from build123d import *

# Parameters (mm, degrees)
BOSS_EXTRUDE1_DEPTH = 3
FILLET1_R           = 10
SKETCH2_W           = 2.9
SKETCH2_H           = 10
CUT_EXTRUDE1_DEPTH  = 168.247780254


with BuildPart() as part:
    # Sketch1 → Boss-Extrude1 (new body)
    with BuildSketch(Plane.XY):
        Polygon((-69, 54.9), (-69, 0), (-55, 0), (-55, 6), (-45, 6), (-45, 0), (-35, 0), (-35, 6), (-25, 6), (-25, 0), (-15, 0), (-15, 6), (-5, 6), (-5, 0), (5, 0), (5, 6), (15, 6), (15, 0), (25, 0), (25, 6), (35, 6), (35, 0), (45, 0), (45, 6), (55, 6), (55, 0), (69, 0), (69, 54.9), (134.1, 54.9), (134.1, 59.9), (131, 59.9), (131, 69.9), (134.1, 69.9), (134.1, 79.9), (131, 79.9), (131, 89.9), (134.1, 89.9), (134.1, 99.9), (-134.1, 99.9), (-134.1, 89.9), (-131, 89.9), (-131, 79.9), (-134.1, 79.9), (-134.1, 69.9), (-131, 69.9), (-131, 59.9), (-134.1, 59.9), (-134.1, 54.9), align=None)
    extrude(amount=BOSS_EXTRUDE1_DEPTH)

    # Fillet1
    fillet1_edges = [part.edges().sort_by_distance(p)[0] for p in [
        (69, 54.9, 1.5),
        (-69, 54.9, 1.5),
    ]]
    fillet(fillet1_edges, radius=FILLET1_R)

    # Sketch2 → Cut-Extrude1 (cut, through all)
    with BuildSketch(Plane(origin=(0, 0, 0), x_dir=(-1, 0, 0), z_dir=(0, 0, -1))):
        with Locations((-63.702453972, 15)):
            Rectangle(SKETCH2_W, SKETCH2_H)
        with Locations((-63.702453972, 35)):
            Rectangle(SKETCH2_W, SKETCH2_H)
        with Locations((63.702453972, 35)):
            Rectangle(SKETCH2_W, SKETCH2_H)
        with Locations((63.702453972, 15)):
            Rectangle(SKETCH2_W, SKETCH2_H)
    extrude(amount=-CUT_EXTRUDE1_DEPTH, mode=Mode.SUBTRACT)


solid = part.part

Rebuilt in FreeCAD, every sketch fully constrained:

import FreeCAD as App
import Part
import Sketcher
Q = App.Units.Quantity


def edges_at(feature, points):
    """Names of the edges that pass closest to the given points."""
    edges = feature.Shape.Edges
    near = lambda p: min(range(len(edges)), key=lambda i: edges[i].distToShape(Part.Vertex(*p))[0])
    return sorted({f"Edge{near(p) + 1}" for p in points})

doc = App.newDocument("Part")
params = doc.addObject("Spreadsheet::Sheet", "Params")
for row, (alias, value) in enumerate([
    ("sketch1_width", "14 mm"),
    ("sketch1_width2", "10 mm"),
    ("sketch1_height", "6 mm"),
    ("sketch1_height2", "5 mm"),
    ("sketch1_width3", "65.1 mm"),
    ("pad1_length", "3 mm"),
    ("fillet_radius", "10 mm"),
    ("sketch2_height", "10 mm"),
    ("sketch2_width", "2.9 mm"),
], start=1):
    params.set(f"A{row}", alias)
    params.set(f"B{row}", "=" + value)
    params.setAlias(f"B{row}", alias)

body = doc.addObject("PartDesign::Body", "Body")

sketch1 = body.newObject("Sketcher::SketchObject", "Sketch")
sketch1.AttachmentSupport = (doc.getObject("XY_Plane"), [""])
sketch1.MapMode = "FlatFace"
sketch1.addGeometry([
    Part.LineSegment(App.Vector(-69, 54.9, 0), App.Vector(-69, 0, 0)),
    Part.LineSegment(App.Vector(-69, 0, 0), App.Vector(-55, 0, 0)),
    Part.LineSegment(App.Vector(-55, 0, 0), App.Vector(-55, 6, 0)),
    Part.LineSegment(App.Vector(-55, 6, 0), App.Vector(-45, 6, 0)),
    Part.LineSegment(App.Vector(-45, 6, 0), App.Vector(-45, 0, 0)),
    Part.LineSegment(App.Vector(-45, 0, 0), App.Vector(-35, 0, 0)),
    Part.LineSegment(App.Vector(-35, 0, 0), App.Vector(-35, 6, 0)),
    Part.LineSegment(App.Vector(-35, 6, 0), App.Vector(-25, 6, 0)),
    Part.LineSegment(App.Vector(-25, 6, 0), App.Vector(-25, 0, 0)),
    Part.LineSegment(App.Vector(-25, 0, 0), App.Vector(-15, 0, 0)),
    Part.LineSegment(App.Vector(-15, 0, 0), App.Vector(-15, 6, 0)),
    Part.LineSegment(App.Vector(-15, 6, 0), App.Vector(-5, 6, 0)),
    Part.LineSegment(App.Vector(-5, 6, 0), App.Vector(-5, 0, 0)),
    Part.LineSegment(App.Vector(-5, 0, 0), App.Vector(5, 0, 0)),
    Part.LineSegment(App.Vector(5, 0, 0), App.Vector(5, 6, 0)),
    Part.LineSegment(App.Vector(5, 6, 0), App.Vector(15, 6, 0)),
    Part.LineSegment(App.Vector(15, 6, 0), App.Vector(15, 0, 0)),
    Part.LineSegment(App.Vector(15, 0, 0), App.Vector(25, 0, 0)),
    Part.LineSegment(App.Vector(25, 0, 0), App.Vector(25, 6, 0)),
    Part.LineSegment(App.Vector(25, 6, 0), App.Vector(35, 6, 0)),
    Part.LineSegment(App.Vector(35, 6, 0), App.Vector(35, 0, 0)),
    Part.LineSegment(App.Vector(35, 0, 0), App.Vector(45, 0, 0)),
    Part.LineSegment(App.Vector(45, 0, 0), App.Vector(45, 6, 0)),
    Part.LineSegment(App.Vector(45, 6, 0), App.Vector(55, 6, 0)),
    Part.LineSegment(App.Vector(55, 6, 0), App.Vector(55, 0, 0)),
    Part.LineSegment(App.Vector(55, 0, 0), App.Vector(69, 0, 0)),
    Part.LineSegment(App.Vector(69, 0, 0), App.Vector(69, 54.9, 0)),
    Part.LineSegment(App.Vector(69, 54.9, 0), App.Vector(134.1, 54.9, 0)),
    Part.LineSegment(App.Vector(134.1, 54.9, 0), App.Vector(134.1, 59.9, 0)),
    Part.LineSegment(App.Vector(134.1, 59.9, 0), App.Vector(131, 59.9, 0)),
    Part.LineSegment(App.Vector(131, 59.9, 0), App.Vector(131, 69.9, 0)),
    Part.LineSegment(App.Vector(131, 69.9, 0), App.Vector(134.1, 69.9, 0)),
    Part.LineSegment(App.Vector(134.1, 69.9, 0), App.Vector(134.1, 79.9, 0)),
    Part.LineSegment(App.Vector(134.1, 79.9, 0), App.Vector(131, 79.9, 0)),
    Part.LineSegment(App.Vector(131, 79.9, 0), App.Vector(131, 89.9, 0)),
    Part.LineSegment(App.Vector(131, 89.9, 0), App.Vector(134.1, 89.9, 0)),
    Part.LineSegment(App.Vector(134.1, 89.9, 0), App.Vector(134.1, 99.9, 0)),
    Part.LineSegment(App.Vector(134.1, 99.9, 0), App.Vector(-134.1, 99.9, 0)),
    Part.LineSegment(App.Vector(-134.1, 99.9, 0), App.Vector(-134.1, 89.9, 0)),
    Part.LineSegment(App.Vector(-134.1, 89.9, 0), App.Vector(-131, 89.9, 0)),
    Part.LineSegment(App.Vector(-131, 89.9, 0), App.Vector(-131, 79.9, 0)),
    Part.LineSegment(App.Vector(-131, 79.9, 0), App.Vector(-134.1, 79.9, 0)),
    Part.LineSegment(App.Vector(-134.1, 79.9, 0), App.Vector(-134.1, 69.9, 0)),
    Part.LineSegment(App.Vector(-134.1, 69.9, 0), App.Vector(-131, 69.9, 0)),
    Part.LineSegment(App.Vector(-131, 69.9, 0), App.Vector(-131, 59.9, 0)),
    Part.LineSegment(App.Vector(-131, 59.9, 0), App.Vector(-134.1, 59.9, 0)),
    Part.LineSegment(App.Vector(-134.1, 59.9, 0), App.Vector(-134.1, 54.9, 0)),
    Part.LineSegment(App.Vector(-134.1, 54.9, 0), App.Vector(-69, 54.9, 0)),
], False)
sketch1.addConstraint([
    Sketcher.Constraint("Coincident", 0, 2, 1, 1),
    Sketcher.Constraint("Coincident", 1, 2, 2, 1),
    Sketcher.Constraint("Coincident", 2, 2, 3, 1),
    Sketcher.Constraint("Coincident", 3, 2, 4, 1),
    Sketcher.Constraint("Coincident", 4, 2, 5, 1),
    Sketcher.Constraint("Coincident", 5, 2, 6, 1),
    Sketcher.Constraint("Coincident", 6, 2, 7, 1),
    Sketcher.Constraint("Coincident", 7, 2, 8, 1),
    Sketcher.Constraint("Coincident", 8, 2, 9, 1),
    Sketcher.Constraint("Coincident", 9, 2, 10, 1),
    Sketcher.Constraint("Coincident", 10, 2, 11, 1),
    Sketcher.Constraint("Coincident", 11, 2, 12, 1),
    Sketcher.Constraint("Coincident", 12, 2, 13, 1),
    Sketcher.Constraint("Coincident", 13, 2, 14, 1),
    Sketcher.Constraint("Coincident", 14, 2, 15, 1),
    Sketcher.Constraint("Coincident", 15, 2, 16, 1),
    Sketcher.Constraint("Coincident", 16, 2, 17, 1),
    Sketcher.Constraint("Coincident", 17, 2, 18, 1),
    Sketcher.Constraint("Coincident", 18, 2, 19, 1),
    Sketcher.Constraint("Coincident", 19, 2, 20, 1),
    Sketcher.Constraint("Coincident", 20, 2, 21, 1),
    Sketcher.Constraint("Coincident", 21, 2, 22, 1),
    Sketcher.Constraint("Coincident", 22, 2, 23, 1),
    Sketcher.Constraint("Coincident", 23, 2, 24, 1),
    Sketcher.Constraint("Coincident", 24, 2, 25, 1),
    Sketcher.Constraint("Coincident", 25, 2, 26, 1),
    Sketcher.Constraint("Coincident", 26, 2, 27, 1),
    Sketcher.Constraint("Coincident", 27, 2, 28, 1),
    Sketcher.Constraint("Coincident", 28, 2, 29, 1),
    Sketcher.Constraint("Coincident", 29, 2, 30, 1),
    Sketcher.Constraint("Coincident", 30, 2, 31, 1),
    Sketcher.Constraint("Coincident", 31, 2, 32, 1),
    Sketcher.Constraint("Coincident", 32, 2, 33, 1),
    Sketcher.Constraint("Coincident", 33, 2, 34, 1),
    Sketcher.Constraint("Coincident", 34, 2, 35, 1),
    Sketcher.Constraint("Coincident", 35, 2, 36, 1),
    Sketcher.Constraint("Coincident", 36, 2, 37, 1),
    Sketcher.Constraint("Coincident", 37, 2, 38, 1),
    Sketcher.Constraint("Coincident", 38, 2, 39, 1),
    Sketcher.Constraint("Coincident", 39, 2, 40, 1),
    Sketcher.Constraint("Coincident", 40, 2, 41, 1),
    Sketcher.Constraint("Coincident", 41, 2, 42, 1),
    Sketcher.Constraint("Coincident", 42, 2, 43, 1),
    Sketcher.Constraint("Coincident", 43, 2, 44, 1),
    Sketcher.Constraint("Coincident", 44, 2, 45, 1),
    Sketcher.Constraint("Coincident", 45, 2, 46, 1),
    Sketcher.Constraint("Coincident", 46, 2, 47, 1),
    Sketcher.Constraint("Coincident", 47, 2, 0, 1),
    Sketcher.Constraint("Vertical", 0),
    Sketcher.Constraint("Horizontal", 1),
    Sketcher.Constraint("Vertical", 2),
    Sketcher.Constraint("Horizontal", 3),
    Sketcher.Constraint("Vertical", 4),
    Sketcher.Constraint("Horizontal", 5),
    Sketcher.Constraint("Vertical", 6),
    Sketcher.Constraint("Horizontal", 7),
    Sketcher.Constraint("Vertical", 8),
    Sketcher.Constraint("Horizontal", 9),
    Sketcher.Constraint("Vertical", 10),
    Sketcher.Constraint("Horizontal", 11),
    Sketcher.Constraint("Vertical", 12),
    Sketcher.Constraint("Horizontal", 13),
    Sketcher.Constraint("Vertical", 14),
    Sketcher.Constraint("Horizontal", 15),
    Sketcher.Constraint("Vertical", 16),
    Sketcher.Constraint("Horizontal", 17),
    Sketcher.Constraint("Vertical", 18),
    Sketcher.Constraint("Horizontal", 19),
    Sketcher.Constraint("Vertical", 20),
    Sketcher.Constraint("Horizontal", 21),
    Sketcher.Constraint("Vertical", 22),
    Sketcher.Constraint("Horizontal", 23),
    Sketcher.Constraint("Vertical", 24),
    Sketcher.Constraint("Horizontal", 25),
    Sketcher.Constraint("Vertical", 26),
    Sketcher.Constraint("Horizontal", 27),
    Sketcher.Constraint("Vertical", 28),
    Sketcher.Constraint("Horizontal", 29),
    Sketcher.Constraint("Vertical", 30),
    Sketcher.Constraint("Horizontal", 31),
    Sketcher.Constraint("Vertical", 32),
    Sketcher.Constraint("Horizontal", 33),
    Sketcher.Constraint("Vertical", 34),
    Sketcher.Constraint("Horizontal", 35),
    Sketcher.Constraint("Vertical", 36),
    Sketcher.Constraint("Horizontal", 37),
    Sketcher.Constraint("Vertical", 38),
    Sketcher.Constraint("Horizontal", 39),
    Sketcher.Constraint("Vertical", 40),
    Sketcher.Constraint("Horizontal", 41),
    Sketcher.Constraint("Vertical", 42),
    Sketcher.Constraint("Horizontal", 43),
    Sketcher.Constraint("Vertical", 44),
    Sketcher.Constraint("Horizontal", 45),
    Sketcher.Constraint("Vertical", 46),
    Sketcher.Constraint("Horizontal", 47),
    Sketcher.Constraint("Symmetric", 12, 2, 13, 2, -1, 1),
    Sketcher.Constraint("Symmetric", 9, 2, 16, 2, -1, 1),
    Sketcher.Constraint("Symmetric", 5, 2, 20, 2, -1, 1),
    Sketcher.Constraint("Symmetric", 1, 2, 24, 2, -1, 1),
    Sketcher.Constraint("Symmetric", 8, 2, 17, 2, -2),
    Sketcher.Constraint("Symmetric", 4, 2, 21, 2, -2),
    Sketcher.Constraint("Symmetric", 0, 2, 25, 2, -2),
    Sketcher.Constraint("Symmetric", 35, 2, 38, 2, -2),
    Sketcher.Constraint("Symmetric", 33, 2, 40, 2, -2),
    Sketcher.Constraint("Symmetric", 31, 2, 42, 2, -2),
    Sketcher.Constraint("Symmetric", 29, 2, 44, 2, -2),
    Sketcher.Constraint("Symmetric", 27, 2, 46, 2, -2),
    Sketcher.Constraint("Horizontal", 3, 2, 6, 2),
    Sketcher.Constraint("Horizontal", 7, 2, 10, 2),
    Sketcher.Constraint("Horizontal", 11, 2, 14, 2),
    Sketcher.Constraint("Horizontal", 15, 2, 18, 2),
    Sketcher.Constraint("Horizontal", 19, 2, 22, 2),
    Sketcher.Constraint("Vertical", 28, 2, 31, 2),
    Sketcher.Constraint("Vertical", 30, 2, 33, 2),
    Sketcher.Constraint("Vertical", 32, 2, 35, 2),
    Sketcher.Constraint("Equal", 3, 5),
    Sketcher.Constraint("Equal", 5, 7),
    Sketcher.Constraint("Equal", 7, 9),
    Sketcher.Constraint("Equal", 9, 11),
    Sketcher.Constraint("Equal", 11, 13),
    Sketcher.Constraint("Equal", 23, 30),
    Sketcher.Constraint("Equal", 30, 32),
    Sketcher.Constraint("Equal", 32, 34),
    Sketcher.Constraint("Equal", 34, 36),
    Sketcher.Constraint("DistanceX", 1, 1, 1, 2, Q("14 mm")),
    Sketcher.Constraint("DistanceX", 3, 1, 3, 2, Q("10 mm")),
    Sketcher.Constraint("DistanceY", 2, 1, 2, 2, Q("6 mm")),
    Sketcher.Constraint("DistanceY", 28, 1, 28, 2, Q("5 mm")),
    Sketcher.Constraint("DistanceX", 27, 1, 27, 2, Q("65.1 mm")),
    Sketcher.Constraint("DistanceX", 29, 2, 29, 1, Q("3.1 mm")),
    Sketcher.Constraint("DistanceY", 0, 2, 0, 1, Q("54.9 mm")),
])
sketch1.setExpression("Constraints[125]", "Params.sketch1_width")
sketch1.setExpression("Constraints[126]", "Params.sketch1_width2")
sketch1.setExpression("Constraints[127]", "Params.sketch1_height")
sketch1.setExpression("Constraints[128]", "Params.sketch1_height2")
sketch1.setExpression("Constraints[129]", "Params.sketch1_width3")
pad1 = body.newObject("PartDesign::Pad", "Pad")
pad1.Profile = sketch1
pad1.setExpression("Length", "Params.pad1_length")
doc.recompute()

fillet = body.newObject("PartDesign::Fillet", "Fillet")
fillet.Base = (pad1, edges_at(pad1, [(69, 54.9, 1.5), (-69, 54.9, 1.5)]))
fillet.setExpression("Radius", "Params.fillet_radius")

sketch2 = body.newObject("Sketcher::SketchObject", "Sketch001")
sketch2.AttachmentSupport = (doc.getObject("XY_Plane"), [""])
sketch2.MapMode = "FlatFace"
sketch2.addGeometry([
    Part.LineSegment(App.Vector(65.2, 20, 0), App.Vector(65.2, 10, 0)),
    Part.LineSegment(App.Vector(65.2, 10, 0), App.Vector(62.3, 10, 0)),
    Part.LineSegment(App.Vector(62.3, 10, 0), App.Vector(62.3, 20, 0)),
    Part.LineSegment(App.Vector(62.3, 20, 0), App.Vector(65.2, 20, 0)),
    Part.LineSegment(App.Vector(65.2, 40, 0), App.Vector(65.2, 30, 0)),
    Part.LineSegment(App.Vector(65.2, 30, 0), App.Vector(62.3, 30, 0)),
    Part.LineSegment(App.Vector(62.3, 30, 0), App.Vector(62.3, 40, 0)),
    Part.LineSegment(App.Vector(62.3, 40, 0), App.Vector(65.2, 40, 0)),
    Part.LineSegment(App.Vector(-62.3, 40, 0), App.Vector(-62.3, 30, 0)),
    Part.LineSegment(App.Vector(-62.3, 30, 0), App.Vector(-65.2, 30, 0)),
    Part.LineSegment(App.Vector(-65.2, 30, 0), App.Vector(-65.2, 40, 0)),
    Part.LineSegment(App.Vector(-65.2, 40, 0), App.Vector(-62.3, 40, 0)),
    Part.LineSegment(App.Vector(-62.3, 20, 0), App.Vector(-62.3, 10, 0)),
    Part.LineSegment(App.Vector(-62.3, 10, 0), App.Vector(-65.2, 10, 0)),
    Part.LineSegment(App.Vector(-65.2, 10, 0), App.Vector(-65.2, 20, 0)),
    Part.LineSegment(App.Vector(-65.2, 20, 0), App.Vector(-62.3, 20, 0)),
], False)
sketch2.addConstraint([
    Sketcher.Constraint("Coincident", 0, 2, 1, 1),
    Sketcher.Constraint("Coincident", 1, 2, 2, 1),
    Sketcher.Constraint("Coincident", 2, 2, 3, 1),
    Sketcher.Constraint("Coincident", 3, 2, 0, 1),
    Sketcher.Constraint("Coincident", 4, 2, 5, 1),
    Sketcher.Constraint("Coincident", 5, 2, 6, 1),
    Sketcher.Constraint("Coincident", 6, 2, 7, 1),
    Sketcher.Constraint("Coincident", 7, 2, 4, 1),
    Sketcher.Constraint("Coincident", 8, 2, 9, 1),
    Sketcher.Constraint("Coincident", 9, 2, 10, 1),
    Sketcher.Constraint("Coincident", 10, 2, 11, 1),
    Sketcher.Constraint("Coincident", 11, 2, 8, 1),
    Sketcher.Constraint("Coincident", 12, 2, 13, 1),
    Sketcher.Constraint("Coincident", 13, 2, 14, 1),
    Sketcher.Constraint("Coincident", 14, 2, 15, 1),
    Sketcher.Constraint("Coincident", 15, 2, 12, 1),
    Sketcher.Constraint("Vertical", 0),
    Sketcher.Constraint("Horizontal", 1),
    Sketcher.Constraint("Vertical", 2),
    Sketcher.Constraint("Horizontal", 3),
    Sketcher.Constraint("Vertical", 4),
    Sketcher.Constraint("Horizontal", 5),
    Sketcher.Constraint("Vertical", 6),
    Sketcher.Constraint("Horizontal", 7),
    Sketcher.Constraint("Vertical", 8),
    Sketcher.Constraint("Horizontal", 9),
    Sketcher.Constraint("Vertical", 10),
    Sketcher.Constraint("Horizontal", 11),
    Sketcher.Constraint("Vertical", 12),
    Sketcher.Constraint("Horizontal", 13),
    Sketcher.Constraint("Vertical", 14),
    Sketcher.Constraint("Horizontal", 15),
    Sketcher.Constraint("Symmetric", 5, 2, 8, 2, -2),
    Sketcher.Constraint("Symmetric", 7, 2, 10, 2, -2),
    Sketcher.Constraint("Symmetric", 1, 2, 12, 2, -2),
    Sketcher.Constraint("Symmetric", 3, 2, 14, 2, -2),
    Sketcher.Constraint("Vertical", 3, 2, 4, 2),
    Sketcher.Constraint("Vertical", 2, 2, 5, 2),
    Sketcher.Constraint("Equal", 2, 4),
    Sketcher.Constraint("DistanceY", 0, 2, 0, 1, Q("10 mm")),
    Sketcher.Constraint("DistanceX", 1, 2, 1, 1, Q("2.9 mm")),
    Sketcher.Constraint("DistanceY", -1, 1, 0, 2, Q("10 mm")),
    Sketcher.Constraint("DistanceY", -1, 1, 4, 2, Q("30 mm")),
    Sketcher.Constraint("DistanceX", -1, 1, 0, 2, Q("65.152454 mm")),
])
sketch2.setExpression("Constraints[39]", "Params.sketch2_height")
sketch2.setExpression("Constraints[40]", "Params.sketch2_width")
pocket1 = body.newObject("PartDesign::Pocket", "Pocket")
pocket1.Profile = sketch2
pocket1.Type = "ThroughAll"
pocket1.Reversed = True

doc.recompute()
